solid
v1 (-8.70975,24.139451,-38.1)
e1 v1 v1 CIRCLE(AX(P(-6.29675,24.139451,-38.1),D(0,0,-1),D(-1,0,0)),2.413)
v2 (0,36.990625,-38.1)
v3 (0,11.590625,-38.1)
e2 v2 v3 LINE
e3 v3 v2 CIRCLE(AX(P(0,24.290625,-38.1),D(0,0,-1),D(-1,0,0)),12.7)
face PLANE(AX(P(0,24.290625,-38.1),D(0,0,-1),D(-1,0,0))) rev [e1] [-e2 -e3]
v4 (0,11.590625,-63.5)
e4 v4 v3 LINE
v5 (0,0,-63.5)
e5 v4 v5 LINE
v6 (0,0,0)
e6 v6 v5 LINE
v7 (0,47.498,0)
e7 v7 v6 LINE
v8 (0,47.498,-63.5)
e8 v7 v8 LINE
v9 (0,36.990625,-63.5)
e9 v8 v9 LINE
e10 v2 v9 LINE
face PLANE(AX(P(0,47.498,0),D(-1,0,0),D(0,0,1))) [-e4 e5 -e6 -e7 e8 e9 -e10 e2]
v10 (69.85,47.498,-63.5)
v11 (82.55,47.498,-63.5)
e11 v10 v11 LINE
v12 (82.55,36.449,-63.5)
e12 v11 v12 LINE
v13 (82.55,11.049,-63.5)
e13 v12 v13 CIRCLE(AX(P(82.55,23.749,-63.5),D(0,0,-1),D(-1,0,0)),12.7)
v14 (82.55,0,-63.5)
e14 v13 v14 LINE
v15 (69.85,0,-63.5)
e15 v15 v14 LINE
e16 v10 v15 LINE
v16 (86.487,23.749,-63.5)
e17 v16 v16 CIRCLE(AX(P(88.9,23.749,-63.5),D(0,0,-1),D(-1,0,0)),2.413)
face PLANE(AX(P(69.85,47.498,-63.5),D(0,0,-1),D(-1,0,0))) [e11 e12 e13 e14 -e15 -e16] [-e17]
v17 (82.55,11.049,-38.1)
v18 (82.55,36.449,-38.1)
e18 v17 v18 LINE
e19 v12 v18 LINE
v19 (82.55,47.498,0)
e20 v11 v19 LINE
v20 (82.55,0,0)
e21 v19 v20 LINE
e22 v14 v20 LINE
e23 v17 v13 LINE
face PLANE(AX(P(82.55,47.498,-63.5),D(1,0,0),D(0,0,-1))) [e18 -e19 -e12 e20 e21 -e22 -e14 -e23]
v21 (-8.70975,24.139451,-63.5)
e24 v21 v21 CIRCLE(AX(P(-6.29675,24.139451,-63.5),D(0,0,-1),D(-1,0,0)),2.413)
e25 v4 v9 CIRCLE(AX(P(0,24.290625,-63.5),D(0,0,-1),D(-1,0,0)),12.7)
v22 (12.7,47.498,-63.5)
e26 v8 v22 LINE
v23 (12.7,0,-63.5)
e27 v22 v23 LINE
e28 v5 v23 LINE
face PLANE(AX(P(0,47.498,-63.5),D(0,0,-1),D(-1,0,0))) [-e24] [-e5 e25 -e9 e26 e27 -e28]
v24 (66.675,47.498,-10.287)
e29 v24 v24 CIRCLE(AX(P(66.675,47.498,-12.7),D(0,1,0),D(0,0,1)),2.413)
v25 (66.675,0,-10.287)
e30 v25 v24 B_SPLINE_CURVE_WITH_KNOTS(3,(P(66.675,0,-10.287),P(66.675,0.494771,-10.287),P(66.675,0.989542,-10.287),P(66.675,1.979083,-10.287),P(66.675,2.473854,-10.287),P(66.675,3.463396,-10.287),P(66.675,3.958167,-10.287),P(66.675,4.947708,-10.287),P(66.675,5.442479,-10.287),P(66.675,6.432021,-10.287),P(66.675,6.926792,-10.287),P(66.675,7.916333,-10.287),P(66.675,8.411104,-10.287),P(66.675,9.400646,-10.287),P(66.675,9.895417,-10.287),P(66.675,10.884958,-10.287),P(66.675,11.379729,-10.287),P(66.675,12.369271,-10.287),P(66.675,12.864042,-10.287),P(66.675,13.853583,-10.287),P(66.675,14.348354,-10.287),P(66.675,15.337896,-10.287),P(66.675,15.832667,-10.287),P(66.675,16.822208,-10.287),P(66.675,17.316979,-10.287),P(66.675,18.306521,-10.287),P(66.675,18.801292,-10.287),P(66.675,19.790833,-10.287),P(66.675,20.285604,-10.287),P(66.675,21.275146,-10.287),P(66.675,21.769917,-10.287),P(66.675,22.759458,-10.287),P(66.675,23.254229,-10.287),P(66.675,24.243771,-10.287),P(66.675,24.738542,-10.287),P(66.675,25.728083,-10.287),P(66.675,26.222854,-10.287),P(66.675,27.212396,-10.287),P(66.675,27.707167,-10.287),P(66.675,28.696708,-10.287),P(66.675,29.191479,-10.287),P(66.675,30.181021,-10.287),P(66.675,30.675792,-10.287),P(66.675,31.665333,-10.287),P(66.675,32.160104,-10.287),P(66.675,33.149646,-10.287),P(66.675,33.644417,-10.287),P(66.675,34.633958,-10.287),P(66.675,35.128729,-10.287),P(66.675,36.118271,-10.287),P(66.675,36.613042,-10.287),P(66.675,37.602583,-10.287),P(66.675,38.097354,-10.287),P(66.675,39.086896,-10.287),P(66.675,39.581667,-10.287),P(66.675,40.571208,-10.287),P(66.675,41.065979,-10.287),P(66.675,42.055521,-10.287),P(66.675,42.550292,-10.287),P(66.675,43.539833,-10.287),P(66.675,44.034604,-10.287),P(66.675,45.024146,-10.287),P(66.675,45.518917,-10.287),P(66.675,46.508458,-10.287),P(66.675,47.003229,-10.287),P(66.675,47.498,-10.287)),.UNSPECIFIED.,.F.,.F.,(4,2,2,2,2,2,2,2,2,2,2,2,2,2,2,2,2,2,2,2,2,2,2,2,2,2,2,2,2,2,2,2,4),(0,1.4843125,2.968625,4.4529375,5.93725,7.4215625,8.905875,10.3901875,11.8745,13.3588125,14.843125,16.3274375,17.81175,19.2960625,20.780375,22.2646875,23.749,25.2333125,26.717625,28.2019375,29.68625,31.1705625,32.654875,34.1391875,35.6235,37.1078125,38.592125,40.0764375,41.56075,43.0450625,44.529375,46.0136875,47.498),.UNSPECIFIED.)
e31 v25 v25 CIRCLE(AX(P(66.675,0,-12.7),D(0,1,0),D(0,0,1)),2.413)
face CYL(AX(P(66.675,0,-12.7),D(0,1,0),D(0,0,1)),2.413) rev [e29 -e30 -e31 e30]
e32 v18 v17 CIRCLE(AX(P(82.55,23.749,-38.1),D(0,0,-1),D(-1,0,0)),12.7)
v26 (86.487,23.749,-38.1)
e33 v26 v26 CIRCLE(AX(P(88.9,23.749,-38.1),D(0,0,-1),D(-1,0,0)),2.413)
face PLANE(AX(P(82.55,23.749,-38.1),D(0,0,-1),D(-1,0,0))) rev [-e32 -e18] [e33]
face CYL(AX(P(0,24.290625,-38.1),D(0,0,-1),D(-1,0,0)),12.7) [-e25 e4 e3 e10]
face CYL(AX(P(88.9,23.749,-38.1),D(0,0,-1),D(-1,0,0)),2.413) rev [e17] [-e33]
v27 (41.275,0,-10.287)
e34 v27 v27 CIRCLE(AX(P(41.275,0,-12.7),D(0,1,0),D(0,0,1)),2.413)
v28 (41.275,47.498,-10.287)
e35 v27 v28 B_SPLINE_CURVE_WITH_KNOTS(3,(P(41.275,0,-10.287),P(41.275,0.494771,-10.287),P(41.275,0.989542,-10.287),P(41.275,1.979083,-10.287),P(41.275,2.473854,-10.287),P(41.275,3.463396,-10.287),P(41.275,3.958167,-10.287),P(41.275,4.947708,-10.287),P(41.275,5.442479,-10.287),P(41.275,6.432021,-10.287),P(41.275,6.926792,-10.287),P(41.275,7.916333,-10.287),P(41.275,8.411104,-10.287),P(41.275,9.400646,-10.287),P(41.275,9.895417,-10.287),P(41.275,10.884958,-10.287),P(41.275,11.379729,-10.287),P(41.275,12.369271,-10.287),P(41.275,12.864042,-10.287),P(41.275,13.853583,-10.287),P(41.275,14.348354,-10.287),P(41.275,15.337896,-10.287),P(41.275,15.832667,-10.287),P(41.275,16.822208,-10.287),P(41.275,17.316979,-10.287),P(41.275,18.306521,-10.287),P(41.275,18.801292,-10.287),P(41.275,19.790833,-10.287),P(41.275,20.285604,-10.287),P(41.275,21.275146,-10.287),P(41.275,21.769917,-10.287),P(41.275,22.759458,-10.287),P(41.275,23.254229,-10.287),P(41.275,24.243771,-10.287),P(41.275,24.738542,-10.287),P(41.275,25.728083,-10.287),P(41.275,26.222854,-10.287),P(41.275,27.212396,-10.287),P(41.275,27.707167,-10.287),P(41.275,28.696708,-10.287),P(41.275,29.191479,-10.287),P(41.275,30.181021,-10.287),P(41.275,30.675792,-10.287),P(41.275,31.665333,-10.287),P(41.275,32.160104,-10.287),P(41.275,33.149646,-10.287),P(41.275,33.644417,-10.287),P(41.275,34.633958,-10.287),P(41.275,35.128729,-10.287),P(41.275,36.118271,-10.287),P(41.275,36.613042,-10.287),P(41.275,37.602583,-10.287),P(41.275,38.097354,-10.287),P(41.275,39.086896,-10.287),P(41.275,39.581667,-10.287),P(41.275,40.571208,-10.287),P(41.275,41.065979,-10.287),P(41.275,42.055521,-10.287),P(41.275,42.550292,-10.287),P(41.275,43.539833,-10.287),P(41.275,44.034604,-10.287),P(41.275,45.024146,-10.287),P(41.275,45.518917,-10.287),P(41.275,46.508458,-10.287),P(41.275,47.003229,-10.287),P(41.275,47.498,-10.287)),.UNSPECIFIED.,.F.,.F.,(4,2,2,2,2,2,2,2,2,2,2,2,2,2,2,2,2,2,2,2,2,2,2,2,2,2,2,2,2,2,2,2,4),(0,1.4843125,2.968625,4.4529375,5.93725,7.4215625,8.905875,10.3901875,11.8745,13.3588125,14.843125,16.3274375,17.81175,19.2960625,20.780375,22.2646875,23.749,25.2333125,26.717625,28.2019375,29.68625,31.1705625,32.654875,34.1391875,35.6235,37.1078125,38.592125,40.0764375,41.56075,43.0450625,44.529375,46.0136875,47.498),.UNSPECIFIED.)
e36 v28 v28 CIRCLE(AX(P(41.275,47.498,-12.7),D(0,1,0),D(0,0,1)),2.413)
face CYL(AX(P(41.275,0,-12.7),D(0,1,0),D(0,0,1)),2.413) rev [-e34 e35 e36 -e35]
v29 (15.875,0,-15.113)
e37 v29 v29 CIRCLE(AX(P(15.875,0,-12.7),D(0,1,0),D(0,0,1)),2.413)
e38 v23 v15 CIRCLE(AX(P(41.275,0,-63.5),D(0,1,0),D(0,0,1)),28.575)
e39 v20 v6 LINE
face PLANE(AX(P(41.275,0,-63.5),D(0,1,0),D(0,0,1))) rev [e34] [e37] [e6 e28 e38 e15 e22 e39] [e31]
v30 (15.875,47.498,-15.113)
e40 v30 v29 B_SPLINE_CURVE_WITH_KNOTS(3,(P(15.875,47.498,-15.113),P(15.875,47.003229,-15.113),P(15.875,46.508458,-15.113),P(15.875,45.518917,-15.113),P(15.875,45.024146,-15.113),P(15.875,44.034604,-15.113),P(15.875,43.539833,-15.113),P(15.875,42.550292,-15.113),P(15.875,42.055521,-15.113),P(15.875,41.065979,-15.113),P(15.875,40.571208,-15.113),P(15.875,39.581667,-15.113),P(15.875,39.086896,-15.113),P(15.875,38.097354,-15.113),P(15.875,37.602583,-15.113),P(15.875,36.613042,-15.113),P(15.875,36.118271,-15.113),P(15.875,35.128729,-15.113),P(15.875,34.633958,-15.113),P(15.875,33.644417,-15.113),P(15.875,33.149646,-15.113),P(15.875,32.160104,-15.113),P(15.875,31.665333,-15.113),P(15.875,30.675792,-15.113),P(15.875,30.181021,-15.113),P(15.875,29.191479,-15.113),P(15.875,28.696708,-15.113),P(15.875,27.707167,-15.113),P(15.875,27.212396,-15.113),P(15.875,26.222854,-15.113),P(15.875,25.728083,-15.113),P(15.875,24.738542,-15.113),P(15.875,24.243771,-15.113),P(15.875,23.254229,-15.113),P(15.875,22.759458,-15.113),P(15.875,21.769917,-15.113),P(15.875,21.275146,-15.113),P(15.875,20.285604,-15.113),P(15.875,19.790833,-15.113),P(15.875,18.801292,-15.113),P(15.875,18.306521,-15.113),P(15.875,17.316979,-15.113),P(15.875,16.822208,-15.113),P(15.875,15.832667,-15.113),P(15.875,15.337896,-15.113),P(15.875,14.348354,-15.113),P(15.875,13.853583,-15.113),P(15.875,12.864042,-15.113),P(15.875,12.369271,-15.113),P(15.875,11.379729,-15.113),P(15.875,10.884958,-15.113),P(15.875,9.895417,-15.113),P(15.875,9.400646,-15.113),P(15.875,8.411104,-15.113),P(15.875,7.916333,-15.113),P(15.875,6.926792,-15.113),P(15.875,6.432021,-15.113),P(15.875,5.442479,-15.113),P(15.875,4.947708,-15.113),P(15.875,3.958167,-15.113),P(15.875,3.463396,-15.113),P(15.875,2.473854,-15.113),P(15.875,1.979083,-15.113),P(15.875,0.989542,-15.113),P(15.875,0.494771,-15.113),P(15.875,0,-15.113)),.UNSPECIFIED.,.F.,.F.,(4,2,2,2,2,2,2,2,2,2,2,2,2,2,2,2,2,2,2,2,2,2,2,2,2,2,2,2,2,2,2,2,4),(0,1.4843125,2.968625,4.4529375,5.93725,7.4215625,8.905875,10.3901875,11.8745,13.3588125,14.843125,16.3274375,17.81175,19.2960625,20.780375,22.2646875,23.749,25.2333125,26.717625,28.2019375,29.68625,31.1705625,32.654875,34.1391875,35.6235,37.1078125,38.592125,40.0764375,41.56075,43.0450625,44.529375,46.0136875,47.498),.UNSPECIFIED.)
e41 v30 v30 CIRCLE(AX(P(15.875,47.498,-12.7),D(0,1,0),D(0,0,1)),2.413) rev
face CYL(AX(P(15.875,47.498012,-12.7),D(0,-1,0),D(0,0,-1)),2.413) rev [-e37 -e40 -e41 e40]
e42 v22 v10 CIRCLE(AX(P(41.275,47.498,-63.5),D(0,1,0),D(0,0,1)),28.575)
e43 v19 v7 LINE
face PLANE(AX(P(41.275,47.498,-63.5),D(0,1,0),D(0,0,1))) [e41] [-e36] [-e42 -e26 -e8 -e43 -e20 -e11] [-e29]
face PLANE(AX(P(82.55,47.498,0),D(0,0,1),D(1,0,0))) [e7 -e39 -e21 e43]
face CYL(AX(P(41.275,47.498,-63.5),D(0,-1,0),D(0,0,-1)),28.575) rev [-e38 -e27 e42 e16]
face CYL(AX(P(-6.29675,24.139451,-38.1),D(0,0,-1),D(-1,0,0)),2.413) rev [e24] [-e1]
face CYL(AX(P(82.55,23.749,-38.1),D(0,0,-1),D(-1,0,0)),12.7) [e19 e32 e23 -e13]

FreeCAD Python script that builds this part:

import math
import FreeCAD as App
import Part
import Sketcher
Q = App.Units.Quantity

doc = App.newDocument("Part")
body = doc.addObject("PartDesign::Body", "Body")

# Sketch on XZ plane
sketch1 = body.newObject("Sketcher::SketchObject", "Sketch")
sketch1.AttachmentSupport = (doc.getObject("XZ_Plane"), [""])
sketch1.MapMode = "FlatFace"
sketch1.addGeometry(Part.LineSegment(App.Vector(0, -64, 0), App.Vector(0, 0, 0)), False)
sketch1.addGeometry(Part.LineSegment(App.Vector(0, 0, 0), App.Vector(83, 0, 0)), False)
sketch1.addGeometry(Part.LineSegment(App.Vector(83, 0, 0), App.Vector(83, -64, 0)), False)
sketch1.addGeometry(Part.LineSegment(App.Vector(83, -64, 0), App.Vector(70, -64, 0)), False)
sketch1.addGeometry(Part.ArcOfCircle(Part.Circle(App.Vector(41, -64, 0), App.Vector(0, 0, 1), 29), math.radians(0), math.radians(180)), False)
sketch1.addGeometry(Part.LineSegment(App.Vector(13, -64, 0), App.Vector(0, -64, 0)), False)
sketch1.addConstraint(Sketcher.Constraint("Coincident", 0, 2, 1, 1))
sketch1.addConstraint(Sketcher.Constraint("Coincident", 1, 2, 2, 1))
sketch1.addConstraint(Sketcher.Constraint("Coincident", 2, 2, 3, 1))
sketch1.addConstraint(Sketcher.Constraint("Coincident", 3, 2, 4, 1))
sketch1.addConstraint(Sketcher.Constraint("Coincident", 4, 2, 5, 1))
sketch1.addConstraint(Sketcher.Constraint("Coincident", 5, 2, 0, 1))
sketch1.addConstraint(Sketcher.Constraint("Vertical", 0))
sketch1.addConstraint(Sketcher.Constraint("Horizontal", 1))
sketch1.addConstraint(Sketcher.Constraint("Vertical", 2))
sketch1.addConstraint(Sketcher.Constraint("Horizontal", 3))
sketch1.addConstraint(Sketcher.Constraint("Horizontal", 5))
sketch1.addConstraint(Sketcher.Constraint("Coincident", 0, 2, -1, 1))
sketch1.addConstraint(Sketcher.Constraint("Horizontal", 4, 3, 2, 2))
sketch1.addConstraint(Sketcher.Constraint("Horizontal", 3, 2, 4, 2))
sketch1.addConstraint(Sketcher.Constraint("Equal", 3, 5))
sketch1.addConstraint(Sketcher.Constraint("DistanceX", 3, 2, 3, 1, Q("0.5 in")))
sketch1.addConstraint(Sketcher.Constraint("DistanceY", 0, 1, 0, 2, Q("2.5 in")))
sketch1.addConstraint(Sketcher.Constraint("Radius", 4, Q("1.125 in")))
pad1 = body.newObject("PartDesign::Pad", "Pad")
pad1.Profile = sketch1
pad1.Length = Q("1.87 in")
pad1.Reversed = True

# Sketch on XZ plane
sketch2 = body.newObject("Sketcher::SketchObject", "Sketch001")
sketch2.AttachmentSupport = (doc.getObject("XZ_Plane"), [""])
sketch2.MapMode = "FlatFace"
sketch2.AttachmentOffset = App.Placement(App.Vector(0, 0, -1.87 * 25.4), App.Rotation())
sketch2.addGeometry(Part.Circle(App.Vector(15.9, -12.7, 0), App.Vector(0, 0, 1), 2.4), False)
sketch2.addConstraint(Sketcher.Constraint("Diameter", 0, Q("0.19 in")))
sketch2.addConstraint(Sketcher.Constraint("DistanceY", 0, 3, -1, 1, Q("0.5 in")))
sketch2.addConstraint(Sketcher.Constraint("DistanceX", -1, 1, 0, 3, Q("0.625 in")))
pocket1 = body.newObject("PartDesign::Pocket", "Pocket")
pocket1.Profile = sketch2
pocket1.Type = "ThroughAll"
pocket1.Midplane = True

# Sketch on XZ plane
sketch3 = body.newObject("Sketcher::SketchObject", "Sketch002")
sketch3.AttachmentSupport = (doc.getObject("XZ_Plane"), [""])
sketch3.MapMode = "FlatFace"
sketch3.AttachmentOffset = App.Placement(App.Vector(0, 0, -1.87 * 25.4), App.Rotation())
sketch3.addGeometry(Part.Circle(App.Vector(15.9, -12.7, 0), App.Vector(0, 0, 1), 2.4), False)
sketch3.addGeometry(Part.Circle(App.Vector(41.3, -12.7, 0), App.Vector(0, 0, 1), 2.4), False)
sketch3.addGeometry(Part.Circle(App.Vector(66.7, -12.7, 0), App.Vector(0, 0, 1), 2.4), False)
sketch3.addConstraint(Sketcher.Constraint("Equal", 0, 1))
sketch3.addConstraint(Sketcher.Constraint("Equal", 1, 2))
sketch3.addConstraint(Sketcher.Constraint("Horizontal", 0, 3, 1, 3))
sketch3.addConstraint(Sketcher.Constraint("Horizontal", 1, 3, 2, 3))
sketch3.addConstraint(Sketcher.Constraint("Diameter", 0, Q("0.19 in")))
sketch3.addConstraint(Sketcher.Constraint("DistanceX", 0, 3, 1, 3, Q("1 in")))
sketch3.addConstraint(Sketcher.Constraint("DistanceX", 1, 3, 2, 3, Q("1 in")))
sketch3.addConstraint(Sketcher.Constraint("DistanceY", 0, 3, -1, 1, Q("0.5 in")))
sketch3.addConstraint(Sketcher.Constraint("DistanceX", -1, 1, 0, 3, Q("0.625 in")))
pocket2 = body.newObject("PartDesign::Pocket", "Pocket001")
pocket2.Profile = sketch3
pocket2.Type = "ThroughAll"
pocket2.Reversed = True

# Sketch on XY plane
sketch4 = body.newObject("Sketcher::SketchObject", "Sketch003")
sketch4.AttachmentSupport = (doc.getObject("XY_Plane"), [""])
sketch4.MapMode = "FlatFace"
sketch4.AttachmentOffset = App.Placement(App.Vector(0, 0, -2.5 * 25.4), App.Rotation())
sketch4.addGeometry(Part.Circle(App.Vector(83, 24, 0), App.Vector(0, 0, 1), 13), False)
sketch4.addConstraint(Sketcher.Constraint("Diameter", 0, Q("1 in")))
sketch4.addConstraint(Sketcher.Constraint("DistanceX", -1, 1, 0, 3, Q("3.25 in")))
sketch4.addConstraint(Sketcher.Constraint("DistanceY", -1, 1, 0, 3, Q("0.935 in")))
pad2 = body.newObject("PartDesign::Pad", "Pad001")
pad2.Profile = sketch4
pad2.Length = Q("1 in")

# Sketch on XY plane
sketch5 = body.newObject("Sketcher::SketchObject", "Sketch004")
sketch5.AttachmentSupport = (doc.getObject("XY_Plane"), [""])
sketch5.MapMode = "FlatFace"
sketch5.AttachmentOffset = App.Placement(App.Vector(0, 0, -2.5 * 25.4), App.Rotation())
sketch5.addGeometry(Part.Circle(App.Vector(0, 24, 0), App.Vector(0, 0, 1), 13), False)
sketch5.addGeometry(Part.Circle(App.Vector(83, 24, 0), App.Vector(0, 0, 1), 13), False)
sketch5.addConstraint(Sketcher.Constraint("Equal", 0, 1))
sketch5.addConstraint(Sketcher.Constraint("PointOnObject", 0, 3, -2))
sketch5.addConstraint(Sketcher.Constraint("Diameter", 0, Q("1 in")))
sketch5.addConstraint(Sketcher.Constraint("DistanceX", -1, 1, 1, 3, Q("3.25 in")))
sketch5.addConstraint(Sketcher.Constraint("DistanceY", -1, 1, 1, 3, Q("0.935 in")))
sketch5.addConstraint(Sketcher.Constraint("DistanceY", -1, 1, 0, 3, 24.290625))
pad3 = body.newObject("PartDesign::Pad", "Pad002")
pad3.Profile = sketch5
pad3.Length = Q("1 in")

# Sketch on XY plane
sketch6 = body.newObject("Sketcher::SketchObject", "Sketch005")
sketch6.AttachmentSupport = (doc.getObject("XY_Plane"), [""])
sketch6.MapMode = "FlatFace"
sketch6.AttachmentOffset = App.Placement(App.Vector(0, 0, -2.5 * 25.4), App.Rotation())
sketch6.addGeometry(Part.Circle(App.Vector(88.9, 23.7, 0), App.Vector(0, 0, 1), 2.4), False)
sketch6.addConstraint(Sketcher.Constraint("Diameter", 0, Q("0.19 in")))
sketch6.addConstraint(Sketcher.Constraint("DistanceX", -1, 1, 0, 3, Q("3.5 in")))
sketch6.addConstraint(Sketcher.Constraint("DistanceY", -1, 1, 0, 3, Q("0.935 in")))
pocket3 = body.newObject("PartDesign::Pocket", "Pocket002")
pocket3.Profile = sketch6
pocket3.Length = Q("1 in")
pocket3.Reversed = True

# Sketch on XY plane
sketch7 = body.newObject("Sketcher::SketchObject", "Sketch006")
sketch7.AttachmentSupport = (doc.getObject("XY_Plane"), [""])
sketch7.MapMode = "FlatFace"
sketch7.AttachmentOffset = App.Placement(App.Vector(0, 0, -2.5 * 25.4), App.Rotation())
sketch7.addGeometry(Part.Circle(App.Vector(-6.3, 24.1, 0), App.Vector(0, 0, 1), 2.4), False)
sketch7.addConstraint(Sketcher.Constraint("Diameter", 0, Q("0.19 in")))
sketch7.addConstraint(Sketcher.Constraint("DistanceX", 0, 3, -1, 1, 6.29675))
sketch7.addConstraint(Sketcher.Constraint("DistanceY", -1, 1, 0, 3, 24.139451))
pocket4 = body.newObject("PartDesign::Pocket", "Pocket003")
pocket4.Profile = sketch7
pocket4.Length = Q("1 in")
pocket4.Reversed = True

doc.recompute()
